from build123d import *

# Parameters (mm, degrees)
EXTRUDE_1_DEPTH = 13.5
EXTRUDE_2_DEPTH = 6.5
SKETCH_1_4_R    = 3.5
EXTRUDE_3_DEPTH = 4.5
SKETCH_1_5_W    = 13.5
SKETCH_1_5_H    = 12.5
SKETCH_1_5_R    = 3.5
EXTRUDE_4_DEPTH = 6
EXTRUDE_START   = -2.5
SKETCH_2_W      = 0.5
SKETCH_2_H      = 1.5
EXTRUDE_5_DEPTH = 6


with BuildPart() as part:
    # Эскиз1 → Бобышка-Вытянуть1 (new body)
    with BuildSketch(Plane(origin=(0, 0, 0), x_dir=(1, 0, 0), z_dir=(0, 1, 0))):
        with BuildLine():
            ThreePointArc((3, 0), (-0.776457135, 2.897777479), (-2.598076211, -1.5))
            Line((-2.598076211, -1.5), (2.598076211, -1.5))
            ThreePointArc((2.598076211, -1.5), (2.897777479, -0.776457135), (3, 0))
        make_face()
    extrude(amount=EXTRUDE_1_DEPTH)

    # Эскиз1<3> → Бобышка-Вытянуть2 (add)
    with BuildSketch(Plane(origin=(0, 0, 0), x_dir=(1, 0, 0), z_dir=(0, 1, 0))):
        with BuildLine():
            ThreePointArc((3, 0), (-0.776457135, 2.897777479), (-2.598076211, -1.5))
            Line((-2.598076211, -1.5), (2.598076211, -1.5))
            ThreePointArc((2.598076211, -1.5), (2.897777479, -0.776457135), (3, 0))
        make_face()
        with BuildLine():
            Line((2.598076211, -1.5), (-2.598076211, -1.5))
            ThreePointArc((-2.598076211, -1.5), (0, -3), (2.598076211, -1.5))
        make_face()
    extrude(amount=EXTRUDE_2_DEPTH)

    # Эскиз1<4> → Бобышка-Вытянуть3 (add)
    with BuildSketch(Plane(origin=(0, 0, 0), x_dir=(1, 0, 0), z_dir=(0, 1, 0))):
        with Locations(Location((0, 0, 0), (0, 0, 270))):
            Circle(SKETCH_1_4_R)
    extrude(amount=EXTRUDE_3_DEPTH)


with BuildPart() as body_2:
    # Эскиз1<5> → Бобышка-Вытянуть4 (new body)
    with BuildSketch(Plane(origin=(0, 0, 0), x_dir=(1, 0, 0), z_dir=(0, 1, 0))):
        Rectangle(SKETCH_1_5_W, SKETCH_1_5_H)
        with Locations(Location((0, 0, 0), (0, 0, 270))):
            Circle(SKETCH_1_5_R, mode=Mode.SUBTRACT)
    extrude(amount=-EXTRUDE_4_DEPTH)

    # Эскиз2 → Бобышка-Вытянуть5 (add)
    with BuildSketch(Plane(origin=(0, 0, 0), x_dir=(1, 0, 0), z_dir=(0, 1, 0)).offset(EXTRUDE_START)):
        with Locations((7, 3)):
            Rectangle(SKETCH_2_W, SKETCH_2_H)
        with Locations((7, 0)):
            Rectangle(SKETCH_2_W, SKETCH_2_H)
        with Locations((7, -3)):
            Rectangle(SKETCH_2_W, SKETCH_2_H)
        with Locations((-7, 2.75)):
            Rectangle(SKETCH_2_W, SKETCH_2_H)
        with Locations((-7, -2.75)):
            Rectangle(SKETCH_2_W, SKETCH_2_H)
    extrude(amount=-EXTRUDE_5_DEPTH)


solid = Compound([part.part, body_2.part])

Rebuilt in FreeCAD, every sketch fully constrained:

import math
import FreeCAD as App
import Part
import Sketcher

V = App.Vector
Q = App.Units.Quantity


def add_polygon(sketch, points):
    """Adds a closed chain of lines whose ends are joined by coincident constraints."""
    first, n = sketch.GeometryCount, len(points)
    for a, b in zip(points, points[1:] + points[:1]):
        sketch.addGeometry(Part.LineSegment(App.Vector(*a, 0), App.Vector(*b, 0)), False)
    for i in range(n):
        sketch.addConstraint(Sketcher.Constraint("Coincident", first + i, 2, first + (i + 1) % n, 1))

doc = App.newDocument("Part")
body = doc.addObject("PartDesign::Body", "Body")

sketch1 = body.newObject("Sketcher::SketchObject", "Sketch")
sketch1.AttachmentSupport = (doc.getObject("XZ_Plane"), [""])
sketch1.MapMode = "FlatFace"
sketch1.addGeometry([
    Part.ArcOfCircle(Part.Circle(V(0, 0, 0), V(0, 0, 1), 3), math.radians(150), math.radians(360)),
    Part.LineSegment(V(-2.6, 1.5, 0), V(2.6, 1.5, 0)),
    Part.ArcOfCircle(Part.Circle(V(0, 0, 0), V(0, 0, 1), 3), math.radians(0), math.radians(30)),
], False)
sketch1.addConstraint([
    Sketcher.Constraint("Coincident", 0, 1, 1, 1),
    Sketcher.Constraint("Coincident", 1, 2, 2, 2),
    Sketcher.Constraint("Tangent", 2, 1, 0, 2),
    Sketcher.Constraint("Horizontal", 1),
    Sketcher.Constraint("Coincident", 0, 3, -1, 1),
    Sketcher.Constraint("Equal", 0, 2),
    Sketcher.Constraint("PointOnObject", 2, 1, -1),
    Sketcher.Constraint("Radius", 0, Q("3 mm")),
    Sketcher.Constraint("DistanceY", -1, 1, 0, 1, Q("1.5 mm")),
])
pad1 = body.newObject("PartDesign::Pad", "Pad")
pad1.Profile = sketch1
pad1.Length = 13.5
pad1.Reversed = True

sketch2 = body.newObject("Sketcher::SketchObject", "Sketch001")
sketch2.AttachmentSupport = (doc.getObject("XZ_Plane"), [""])
sketch2.MapMode = "FlatFace"
sketch2.addGeometry([
    Part.ArcOfCircle(Part.Circle(V(0, 0, 0), V(0, 0, 1), 3), math.radians(150), math.radians(360)),
    Part.ArcOfCircle(Part.Circle(V(0, 0, 0), V(0, 0, 1), 3), math.radians(30), math.radians(150)),
    Part.ArcOfCircle(Part.Circle(V(0, 0, 0), V(0, 0, 1), 3), math.radians(0), math.radians(30)),
], False)
sketch2.addConstraint([
    Sketcher.Constraint("Tangent", 0, 1, 1, 2),
    Sketcher.Constraint("Tangent", 1, 1, 2, 2),
    Sketcher.Constraint("Tangent", 2, 1, 0, 2),
    Sketcher.Constraint("Coincident", 0, 3, -1, 1),
    Sketcher.Constraint("PointOnObject", 2, 1, -1),
    Sketcher.Constraint("Horizontal", 0, 1, 1, 1),
    Sketcher.Constraint("Radius", 0, Q("3 mm")),
    Sketcher.Constraint("DistanceY", -1, 1, 0, 1, Q("1.5 mm")),
])
pad2 = body.newObject("PartDesign::Pad", "Pad001")
pad2.Profile = sketch2
pad2.Length = 6.5
pad2.Reversed = True

sketch3 = body.newObject("Sketcher::SketchObject", "Sketch002")
sketch3.AttachmentSupport = (doc.getObject("XZ_Plane"), [""])
sketch3.MapMode = "FlatFace"
sketch3.addGeometry(Part.Circle(V(0, 0, 0), V(0, 0, 1), 3.5), False)
sketch3.addConstraint([
    Sketcher.Constraint("Coincident", 0, 3, -1, 1),
    Sketcher.Constraint("Diameter", 0, Q("7 mm")),
])
pad3 = body.newObject("PartDesign::Pad", "Pad002")
pad3.Profile = sketch3
pad3.Length = 4.5
pad3.Reversed = True
body2 = doc.addObject("PartDesign::Body", "Body001")

sketch4 = body2.newObject("Sketcher::SketchObject", "Sketch003")
sketch4.AttachmentSupport = (doc.getObject("XZ_Plane001"), [""])
sketch4.MapMode = "FlatFace"
add_polygon(sketch4, [(-6.8, -6.2), (-6.8, 6.2), (6.8, 6.2), (6.8, -6.2)])
sketch4.addGeometry(Part.Circle(V(0, 0, 0), V(0, 0, 1), 3.5), False)
sketch4.addConstraint([
    Sketcher.Constraint("Vertical", 0),
    Sketcher.Constraint("Horizontal", 1),
    Sketcher.Constraint("Vertical", 2),
    Sketcher.Constraint("Horizontal", 3),
    Sketcher.Constraint("Coincident", 4, 3, -1, 1),
    Sketcher.Constraint("Symmetric", 0, 2, 2, 2, -1, 1),
    Sketcher.Constraint("Diameter", 4, Q("7 mm")),
    Sketcher.Constraint("DistanceX", 1, 1, 1, 2, Q("13.5 mm")),
    Sketcher.Constraint("DistanceY", 0, 1, 0, 2, Q("12.5 mm")),
])
pad4 = body2.newObject("PartDesign::Pad", "Pad003")
pad4.Profile = sketch4
pad4.Length = 6

sketch5 = body2.newObject("Sketcher::SketchObject", "Sketch004")
sketch5.AttachmentSupport = (doc.getObject("XZ_Plane001"), [""])
sketch5.MapMode = "FlatFace"
sketch5.AttachmentOffset = App.Placement(V(0, 0, 2.5), App.Rotation())
add_polygon(sketch5, [(6.8, -3.8), (6.8, -2.2), (7.2, -2.2), (7.2, -3.8)])
add_polygon(sketch5, [(6.8, -0.8), (6.8, 0.8), (7.2, 0.8), (7.2, -0.8)])
add_polygon(sketch5, [(6.8, 2.2), (6.8, 3.8), (7.2, 3.8), (7.2, 2.2)])
add_polygon(sketch5, [(-7.2, -3.5), (-7.2, -2), (-6.8, -2), (-6.8, -3.5)])
add_polygon(sketch5, [(-7.2, 2), (-7.2, 3.5), (-6.8, 3.5), (-6.8, 2)])
sketch5.addConstraint([
    Sketcher.Constraint("Vertical", 0),
    Sketcher.Constraint("Horizontal", 1),
    Sketcher.Constraint("Vertical", 2),
    Sketcher.Constraint("Horizontal", 3),
    Sketcher.Constraint("Vertical", 4),
    Sketcher.Constraint("Horizontal", 5),
    Sketcher.Constraint("Vertical", 6),
    Sketcher.Constraint("Horizontal", 7),
    Sketcher.Constraint("Vertical", 8),
    Sketcher.Constraint("Horizontal", 9),
    Sketcher.Constraint("Vertical", 10),
    Sketcher.Constraint("Horizontal", 11),
    Sketcher.Constraint("Vertical", 12),
    Sketcher.Constraint("Horizontal", 13),
    Sketcher.Constraint("Vertical", 14),
    Sketcher.Constraint("Horizontal", 15),
    Sketcher.Constraint("Vertical", 16),
    Sketcher.Constraint("Horizontal", 17),
    Sketcher.Constraint("Vertical", 18),
    Sketcher.Constraint("Horizontal", 19),
    Sketcher.Constraint("Symmetric", 3, 2, 8, 2, -1),
    Sketcher.Constraint("Symmetric", 1, 2, 10, 2, -1),
    Sketcher.Constraint("Symmetric", 15, 2, 16, 2, -1),
    Sketcher.Constraint("Symmetric", 13, 2, 18, 2, -1),
    Sketcher.Constraint("Vertical", 3, 2, 4, 2),
    Sketcher.Constraint("Vertical", 2, 2, 5, 2),
    Sketcher.Constraint("Equal", 11, 13),
    Sketcher.Constraint("Equal", 2, 4),
    Sketcher.Constraint("Equal", 10, 12),
    Sketcher.Constraint("DistanceX", 1, 1, 1, 2, Q("0.5 mm")),
    Sketcher.Constraint("DistanceY", 0, 1, 0, 2, Q("1.5 mm")),
    Sketcher.Constraint("DistanceY", 12, 2, -1, 1, Q("2 mm")),
    Sketcher.Constraint("DistanceY", 0, 2, 4, 2, Q("3 mm")),
    Sketcher.Constraint("DistanceY", 4, 2, 8, 2, Q("3 mm")),
    Sketcher.Constraint("DistanceX", 12, 2, 0, 2, Q("14 mm")),
    Sketcher.Constraint("DistanceX", -1, 1, 0, 2, Q("6.75 mm")),
])
pad5 = body2.newObject("PartDesign::Pad", "Pad004")
pad5.Profile = sketch5
pad5.Length = 6

doc.recompute()
